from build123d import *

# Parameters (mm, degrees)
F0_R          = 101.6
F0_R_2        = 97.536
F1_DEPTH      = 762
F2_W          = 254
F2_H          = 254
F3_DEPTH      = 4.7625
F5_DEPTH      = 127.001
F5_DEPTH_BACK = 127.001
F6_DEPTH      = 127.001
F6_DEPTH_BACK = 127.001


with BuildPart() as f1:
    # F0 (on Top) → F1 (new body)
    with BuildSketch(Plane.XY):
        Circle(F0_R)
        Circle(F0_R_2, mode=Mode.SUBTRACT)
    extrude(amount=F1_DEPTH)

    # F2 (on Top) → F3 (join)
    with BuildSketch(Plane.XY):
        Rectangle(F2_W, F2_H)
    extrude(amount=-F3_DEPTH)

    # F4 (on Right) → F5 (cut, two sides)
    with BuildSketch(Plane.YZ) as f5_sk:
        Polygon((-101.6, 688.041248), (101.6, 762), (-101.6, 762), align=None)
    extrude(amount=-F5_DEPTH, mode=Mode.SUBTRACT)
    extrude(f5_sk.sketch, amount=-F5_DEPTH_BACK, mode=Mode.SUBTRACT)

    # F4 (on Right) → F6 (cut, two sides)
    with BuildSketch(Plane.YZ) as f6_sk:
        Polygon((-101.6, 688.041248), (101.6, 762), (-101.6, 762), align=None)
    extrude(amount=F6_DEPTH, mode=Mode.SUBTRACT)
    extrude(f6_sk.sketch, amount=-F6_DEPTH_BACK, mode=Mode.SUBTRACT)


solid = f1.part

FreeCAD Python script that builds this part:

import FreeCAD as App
import Part
import Sketcher
Q = App.Units.Quantity


def add_polygon(sketch, points):
    """Adds a closed chain of lines whose ends are joined by coincident constraints."""
    first, n = sketch.GeometryCount, len(points)
    for a, b in zip(points, points[1:] + points[:1]):
        sketch.addGeometry(Part.LineSegment(App.Vector(*a, 0), App.Vector(*b, 0)), False)
    for i in range(n):
        sketch.addConstraint(Sketcher.Constraint("Coincident", first + i, 2, first + (i + 1) % n, 1))

doc = App.newDocument("Part")
params = doc.addObject("Spreadsheet::Sheet", "Params")
for row, (alias, value) in enumerate([
    ("sketch1_diameter", "8 in"),
    ("sketch1_diameter2", "7.68 in"),
    ("pad1_length", "30 in"),
    ("sketch2_width", "10 in"),
    ("pad2_length", "0.1875 in"),
    ("sketch3_width", "8 in"),
    ("pocket1_length", "127.001 mm"),
    ("pocket2_length", "127.001 mm"),
    ("sketch4_width", "8 in"),
], start=1):
    params.set(f"A{row}", alias)
    params.set(f"B{row}", "=" + value)
    params.setAlias(f"B{row}", alias)

body = doc.addObject("PartDesign::Body", "Body")

# Sketch on XY plane
sketch1 = doc.addObject("Sketcher::SketchObject", "Sketch")
body.addObject(sketch1)
sketch1.AttachmentSupport = (doc.XY_Plane, [""])
sketch1.MapMode = "FlatFace"
sketch1.addGeometry([
    Part.Circle(App.Vector(0, 0, 0), App.Vector(0, 0, 1), 102),
    Part.Circle(App.Vector(0, 0, 0), App.Vector(0, 0, 1), 98),
], False)
sketch1.addConstraint([
    Sketcher.Constraint("Coincident", 0, 3, -1, 1),
    Sketcher.Constraint("Coincident", 1, 3, -1, 1),
    Sketcher.Constraint("Diameter", 0, Q("8 in")),
    Sketcher.Constraint("Diameter", 1, Q("7.68 in")),
])
sketch1.setExpression("Constraints[2]", "Params.sketch1_diameter")
sketch1.setExpression("Constraints[3]", "Params.sketch1_diameter2")
pad1 = doc.addObject("PartDesign::Pad", "Pad")
body.addObject(pad1)
pad1.Profile = sketch1
pad1.setExpression("Length", "Params.pad1_length")

# Sketch on XY plane
sketch2 = doc.addObject("Sketcher::SketchObject", "Sketch001")
body.addObject(sketch2)
sketch2.AttachmentSupport = (doc.XY_Plane, [""])
sketch2.MapMode = "FlatFace"
add_polygon(sketch2, [(-127, 127), (-127, -127), (127, -127), (127, 127)])  # lines 0-3
sketch2.addConstraint([
    Sketcher.Constraint("Vertical", 0),
    Sketcher.Constraint("Horizontal", 1),
    Sketcher.Constraint("Vertical", 2),
    Sketcher.Constraint("Horizontal", 3),
    Sketcher.Constraint("Symmetric", 0, 2, 2, 2, -1, 1),
    Sketcher.Constraint("Equal", 3, 0),
    Sketcher.Constraint("DistanceX", 1, 1, 1, 2, Q("10 in")),
])
sketch2.setExpression("Constraints[10]", "Params.sketch2_width")
pad2 = doc.addObject("PartDesign::Pad", "Pad001")
body.addObject(pad2)
pad2.Profile = sketch2
pad2.setExpression("Length", "Params.pad2_length")
pad2.Reversed = True

# Sketch on YZ plane
sketch3 = doc.addObject("Sketcher::SketchObject", "Sketch002")
body.addObject(sketch3)
sketch3.AttachmentSupport = (doc.YZ_Plane, [""])
sketch3.MapMode = "FlatFace"
add_polygon(sketch3, [(-102, 688), (102, 762), (-102, 762)])  # lines 0-2
sketch3.addConstraint([
    Sketcher.Constraint("Horizontal", 1),
    Sketcher.Constraint("Vertical", 2),
    Sketcher.Constraint("DistanceX", 1, 2, 1, 1, Q("8 in")),
    Sketcher.Constraint("DistanceX", -1, 1, 0, 2, Q("4 in")),
    Sketcher.Constraint("DistanceY", -1, 1, 0, 2, Q("30 in")),
    Sketcher.Constraint("Angle", 0, Q("20 deg")),
])
sketch3.setExpression("Constraints[5]", "Params.sketch3_width")
pocket1 = doc.addObject("PartDesign::Pocket", "Pocket")
body.addObject(pocket1)
pocket1.Profile = sketch3
pocket1.setExpression("Length", "Params.pocket1_length")
pocket2 = doc.addObject("PartDesign::Pocket", "Pocket001")
body.addObject(pocket2)
pocket2.Profile = sketch3
pocket2.setExpression("Length", "Params.pocket2_length")

# Sketch on YZ plane
sketch4 = doc.addObject("Sketcher::SketchObject", "Sketch003")
body.addObject(sketch4)
sketch4.AttachmentSupport = (doc.YZ_Plane, [""])
sketch4.MapMode = "FlatFace"
add_polygon(sketch4, [(-102, 688), (102, 762), (-102, 762)])  # lines 0-2
sketch4.addConstraint([
    Sketcher.Constraint("Horizontal", 1),
    Sketcher.Constraint("Vertical", 2),
    Sketcher.Constraint("DistanceX", 1, 2, 1, 1, Q("8 in")),
    Sketcher.Constraint("DistanceX", -1, 1, 0, 2, Q("4 in")),
    Sketcher.Constraint("DistanceY", -1, 1, 0, 2, Q("30 in")),
    Sketcher.Constraint("Angle", 0, Q("20 deg")),
])
sketch4.setExpression("Constraints[5]", "Params.sketch4_width")
pocket3 = doc.addObject("PartDesign::Pocket", "Pocket002")
body.addObject(pocket3)
pocket3.Profile = sketch4
pocket3.Type = "ThroughAll"
pocket3.Midplane = True

doc.recompute()
